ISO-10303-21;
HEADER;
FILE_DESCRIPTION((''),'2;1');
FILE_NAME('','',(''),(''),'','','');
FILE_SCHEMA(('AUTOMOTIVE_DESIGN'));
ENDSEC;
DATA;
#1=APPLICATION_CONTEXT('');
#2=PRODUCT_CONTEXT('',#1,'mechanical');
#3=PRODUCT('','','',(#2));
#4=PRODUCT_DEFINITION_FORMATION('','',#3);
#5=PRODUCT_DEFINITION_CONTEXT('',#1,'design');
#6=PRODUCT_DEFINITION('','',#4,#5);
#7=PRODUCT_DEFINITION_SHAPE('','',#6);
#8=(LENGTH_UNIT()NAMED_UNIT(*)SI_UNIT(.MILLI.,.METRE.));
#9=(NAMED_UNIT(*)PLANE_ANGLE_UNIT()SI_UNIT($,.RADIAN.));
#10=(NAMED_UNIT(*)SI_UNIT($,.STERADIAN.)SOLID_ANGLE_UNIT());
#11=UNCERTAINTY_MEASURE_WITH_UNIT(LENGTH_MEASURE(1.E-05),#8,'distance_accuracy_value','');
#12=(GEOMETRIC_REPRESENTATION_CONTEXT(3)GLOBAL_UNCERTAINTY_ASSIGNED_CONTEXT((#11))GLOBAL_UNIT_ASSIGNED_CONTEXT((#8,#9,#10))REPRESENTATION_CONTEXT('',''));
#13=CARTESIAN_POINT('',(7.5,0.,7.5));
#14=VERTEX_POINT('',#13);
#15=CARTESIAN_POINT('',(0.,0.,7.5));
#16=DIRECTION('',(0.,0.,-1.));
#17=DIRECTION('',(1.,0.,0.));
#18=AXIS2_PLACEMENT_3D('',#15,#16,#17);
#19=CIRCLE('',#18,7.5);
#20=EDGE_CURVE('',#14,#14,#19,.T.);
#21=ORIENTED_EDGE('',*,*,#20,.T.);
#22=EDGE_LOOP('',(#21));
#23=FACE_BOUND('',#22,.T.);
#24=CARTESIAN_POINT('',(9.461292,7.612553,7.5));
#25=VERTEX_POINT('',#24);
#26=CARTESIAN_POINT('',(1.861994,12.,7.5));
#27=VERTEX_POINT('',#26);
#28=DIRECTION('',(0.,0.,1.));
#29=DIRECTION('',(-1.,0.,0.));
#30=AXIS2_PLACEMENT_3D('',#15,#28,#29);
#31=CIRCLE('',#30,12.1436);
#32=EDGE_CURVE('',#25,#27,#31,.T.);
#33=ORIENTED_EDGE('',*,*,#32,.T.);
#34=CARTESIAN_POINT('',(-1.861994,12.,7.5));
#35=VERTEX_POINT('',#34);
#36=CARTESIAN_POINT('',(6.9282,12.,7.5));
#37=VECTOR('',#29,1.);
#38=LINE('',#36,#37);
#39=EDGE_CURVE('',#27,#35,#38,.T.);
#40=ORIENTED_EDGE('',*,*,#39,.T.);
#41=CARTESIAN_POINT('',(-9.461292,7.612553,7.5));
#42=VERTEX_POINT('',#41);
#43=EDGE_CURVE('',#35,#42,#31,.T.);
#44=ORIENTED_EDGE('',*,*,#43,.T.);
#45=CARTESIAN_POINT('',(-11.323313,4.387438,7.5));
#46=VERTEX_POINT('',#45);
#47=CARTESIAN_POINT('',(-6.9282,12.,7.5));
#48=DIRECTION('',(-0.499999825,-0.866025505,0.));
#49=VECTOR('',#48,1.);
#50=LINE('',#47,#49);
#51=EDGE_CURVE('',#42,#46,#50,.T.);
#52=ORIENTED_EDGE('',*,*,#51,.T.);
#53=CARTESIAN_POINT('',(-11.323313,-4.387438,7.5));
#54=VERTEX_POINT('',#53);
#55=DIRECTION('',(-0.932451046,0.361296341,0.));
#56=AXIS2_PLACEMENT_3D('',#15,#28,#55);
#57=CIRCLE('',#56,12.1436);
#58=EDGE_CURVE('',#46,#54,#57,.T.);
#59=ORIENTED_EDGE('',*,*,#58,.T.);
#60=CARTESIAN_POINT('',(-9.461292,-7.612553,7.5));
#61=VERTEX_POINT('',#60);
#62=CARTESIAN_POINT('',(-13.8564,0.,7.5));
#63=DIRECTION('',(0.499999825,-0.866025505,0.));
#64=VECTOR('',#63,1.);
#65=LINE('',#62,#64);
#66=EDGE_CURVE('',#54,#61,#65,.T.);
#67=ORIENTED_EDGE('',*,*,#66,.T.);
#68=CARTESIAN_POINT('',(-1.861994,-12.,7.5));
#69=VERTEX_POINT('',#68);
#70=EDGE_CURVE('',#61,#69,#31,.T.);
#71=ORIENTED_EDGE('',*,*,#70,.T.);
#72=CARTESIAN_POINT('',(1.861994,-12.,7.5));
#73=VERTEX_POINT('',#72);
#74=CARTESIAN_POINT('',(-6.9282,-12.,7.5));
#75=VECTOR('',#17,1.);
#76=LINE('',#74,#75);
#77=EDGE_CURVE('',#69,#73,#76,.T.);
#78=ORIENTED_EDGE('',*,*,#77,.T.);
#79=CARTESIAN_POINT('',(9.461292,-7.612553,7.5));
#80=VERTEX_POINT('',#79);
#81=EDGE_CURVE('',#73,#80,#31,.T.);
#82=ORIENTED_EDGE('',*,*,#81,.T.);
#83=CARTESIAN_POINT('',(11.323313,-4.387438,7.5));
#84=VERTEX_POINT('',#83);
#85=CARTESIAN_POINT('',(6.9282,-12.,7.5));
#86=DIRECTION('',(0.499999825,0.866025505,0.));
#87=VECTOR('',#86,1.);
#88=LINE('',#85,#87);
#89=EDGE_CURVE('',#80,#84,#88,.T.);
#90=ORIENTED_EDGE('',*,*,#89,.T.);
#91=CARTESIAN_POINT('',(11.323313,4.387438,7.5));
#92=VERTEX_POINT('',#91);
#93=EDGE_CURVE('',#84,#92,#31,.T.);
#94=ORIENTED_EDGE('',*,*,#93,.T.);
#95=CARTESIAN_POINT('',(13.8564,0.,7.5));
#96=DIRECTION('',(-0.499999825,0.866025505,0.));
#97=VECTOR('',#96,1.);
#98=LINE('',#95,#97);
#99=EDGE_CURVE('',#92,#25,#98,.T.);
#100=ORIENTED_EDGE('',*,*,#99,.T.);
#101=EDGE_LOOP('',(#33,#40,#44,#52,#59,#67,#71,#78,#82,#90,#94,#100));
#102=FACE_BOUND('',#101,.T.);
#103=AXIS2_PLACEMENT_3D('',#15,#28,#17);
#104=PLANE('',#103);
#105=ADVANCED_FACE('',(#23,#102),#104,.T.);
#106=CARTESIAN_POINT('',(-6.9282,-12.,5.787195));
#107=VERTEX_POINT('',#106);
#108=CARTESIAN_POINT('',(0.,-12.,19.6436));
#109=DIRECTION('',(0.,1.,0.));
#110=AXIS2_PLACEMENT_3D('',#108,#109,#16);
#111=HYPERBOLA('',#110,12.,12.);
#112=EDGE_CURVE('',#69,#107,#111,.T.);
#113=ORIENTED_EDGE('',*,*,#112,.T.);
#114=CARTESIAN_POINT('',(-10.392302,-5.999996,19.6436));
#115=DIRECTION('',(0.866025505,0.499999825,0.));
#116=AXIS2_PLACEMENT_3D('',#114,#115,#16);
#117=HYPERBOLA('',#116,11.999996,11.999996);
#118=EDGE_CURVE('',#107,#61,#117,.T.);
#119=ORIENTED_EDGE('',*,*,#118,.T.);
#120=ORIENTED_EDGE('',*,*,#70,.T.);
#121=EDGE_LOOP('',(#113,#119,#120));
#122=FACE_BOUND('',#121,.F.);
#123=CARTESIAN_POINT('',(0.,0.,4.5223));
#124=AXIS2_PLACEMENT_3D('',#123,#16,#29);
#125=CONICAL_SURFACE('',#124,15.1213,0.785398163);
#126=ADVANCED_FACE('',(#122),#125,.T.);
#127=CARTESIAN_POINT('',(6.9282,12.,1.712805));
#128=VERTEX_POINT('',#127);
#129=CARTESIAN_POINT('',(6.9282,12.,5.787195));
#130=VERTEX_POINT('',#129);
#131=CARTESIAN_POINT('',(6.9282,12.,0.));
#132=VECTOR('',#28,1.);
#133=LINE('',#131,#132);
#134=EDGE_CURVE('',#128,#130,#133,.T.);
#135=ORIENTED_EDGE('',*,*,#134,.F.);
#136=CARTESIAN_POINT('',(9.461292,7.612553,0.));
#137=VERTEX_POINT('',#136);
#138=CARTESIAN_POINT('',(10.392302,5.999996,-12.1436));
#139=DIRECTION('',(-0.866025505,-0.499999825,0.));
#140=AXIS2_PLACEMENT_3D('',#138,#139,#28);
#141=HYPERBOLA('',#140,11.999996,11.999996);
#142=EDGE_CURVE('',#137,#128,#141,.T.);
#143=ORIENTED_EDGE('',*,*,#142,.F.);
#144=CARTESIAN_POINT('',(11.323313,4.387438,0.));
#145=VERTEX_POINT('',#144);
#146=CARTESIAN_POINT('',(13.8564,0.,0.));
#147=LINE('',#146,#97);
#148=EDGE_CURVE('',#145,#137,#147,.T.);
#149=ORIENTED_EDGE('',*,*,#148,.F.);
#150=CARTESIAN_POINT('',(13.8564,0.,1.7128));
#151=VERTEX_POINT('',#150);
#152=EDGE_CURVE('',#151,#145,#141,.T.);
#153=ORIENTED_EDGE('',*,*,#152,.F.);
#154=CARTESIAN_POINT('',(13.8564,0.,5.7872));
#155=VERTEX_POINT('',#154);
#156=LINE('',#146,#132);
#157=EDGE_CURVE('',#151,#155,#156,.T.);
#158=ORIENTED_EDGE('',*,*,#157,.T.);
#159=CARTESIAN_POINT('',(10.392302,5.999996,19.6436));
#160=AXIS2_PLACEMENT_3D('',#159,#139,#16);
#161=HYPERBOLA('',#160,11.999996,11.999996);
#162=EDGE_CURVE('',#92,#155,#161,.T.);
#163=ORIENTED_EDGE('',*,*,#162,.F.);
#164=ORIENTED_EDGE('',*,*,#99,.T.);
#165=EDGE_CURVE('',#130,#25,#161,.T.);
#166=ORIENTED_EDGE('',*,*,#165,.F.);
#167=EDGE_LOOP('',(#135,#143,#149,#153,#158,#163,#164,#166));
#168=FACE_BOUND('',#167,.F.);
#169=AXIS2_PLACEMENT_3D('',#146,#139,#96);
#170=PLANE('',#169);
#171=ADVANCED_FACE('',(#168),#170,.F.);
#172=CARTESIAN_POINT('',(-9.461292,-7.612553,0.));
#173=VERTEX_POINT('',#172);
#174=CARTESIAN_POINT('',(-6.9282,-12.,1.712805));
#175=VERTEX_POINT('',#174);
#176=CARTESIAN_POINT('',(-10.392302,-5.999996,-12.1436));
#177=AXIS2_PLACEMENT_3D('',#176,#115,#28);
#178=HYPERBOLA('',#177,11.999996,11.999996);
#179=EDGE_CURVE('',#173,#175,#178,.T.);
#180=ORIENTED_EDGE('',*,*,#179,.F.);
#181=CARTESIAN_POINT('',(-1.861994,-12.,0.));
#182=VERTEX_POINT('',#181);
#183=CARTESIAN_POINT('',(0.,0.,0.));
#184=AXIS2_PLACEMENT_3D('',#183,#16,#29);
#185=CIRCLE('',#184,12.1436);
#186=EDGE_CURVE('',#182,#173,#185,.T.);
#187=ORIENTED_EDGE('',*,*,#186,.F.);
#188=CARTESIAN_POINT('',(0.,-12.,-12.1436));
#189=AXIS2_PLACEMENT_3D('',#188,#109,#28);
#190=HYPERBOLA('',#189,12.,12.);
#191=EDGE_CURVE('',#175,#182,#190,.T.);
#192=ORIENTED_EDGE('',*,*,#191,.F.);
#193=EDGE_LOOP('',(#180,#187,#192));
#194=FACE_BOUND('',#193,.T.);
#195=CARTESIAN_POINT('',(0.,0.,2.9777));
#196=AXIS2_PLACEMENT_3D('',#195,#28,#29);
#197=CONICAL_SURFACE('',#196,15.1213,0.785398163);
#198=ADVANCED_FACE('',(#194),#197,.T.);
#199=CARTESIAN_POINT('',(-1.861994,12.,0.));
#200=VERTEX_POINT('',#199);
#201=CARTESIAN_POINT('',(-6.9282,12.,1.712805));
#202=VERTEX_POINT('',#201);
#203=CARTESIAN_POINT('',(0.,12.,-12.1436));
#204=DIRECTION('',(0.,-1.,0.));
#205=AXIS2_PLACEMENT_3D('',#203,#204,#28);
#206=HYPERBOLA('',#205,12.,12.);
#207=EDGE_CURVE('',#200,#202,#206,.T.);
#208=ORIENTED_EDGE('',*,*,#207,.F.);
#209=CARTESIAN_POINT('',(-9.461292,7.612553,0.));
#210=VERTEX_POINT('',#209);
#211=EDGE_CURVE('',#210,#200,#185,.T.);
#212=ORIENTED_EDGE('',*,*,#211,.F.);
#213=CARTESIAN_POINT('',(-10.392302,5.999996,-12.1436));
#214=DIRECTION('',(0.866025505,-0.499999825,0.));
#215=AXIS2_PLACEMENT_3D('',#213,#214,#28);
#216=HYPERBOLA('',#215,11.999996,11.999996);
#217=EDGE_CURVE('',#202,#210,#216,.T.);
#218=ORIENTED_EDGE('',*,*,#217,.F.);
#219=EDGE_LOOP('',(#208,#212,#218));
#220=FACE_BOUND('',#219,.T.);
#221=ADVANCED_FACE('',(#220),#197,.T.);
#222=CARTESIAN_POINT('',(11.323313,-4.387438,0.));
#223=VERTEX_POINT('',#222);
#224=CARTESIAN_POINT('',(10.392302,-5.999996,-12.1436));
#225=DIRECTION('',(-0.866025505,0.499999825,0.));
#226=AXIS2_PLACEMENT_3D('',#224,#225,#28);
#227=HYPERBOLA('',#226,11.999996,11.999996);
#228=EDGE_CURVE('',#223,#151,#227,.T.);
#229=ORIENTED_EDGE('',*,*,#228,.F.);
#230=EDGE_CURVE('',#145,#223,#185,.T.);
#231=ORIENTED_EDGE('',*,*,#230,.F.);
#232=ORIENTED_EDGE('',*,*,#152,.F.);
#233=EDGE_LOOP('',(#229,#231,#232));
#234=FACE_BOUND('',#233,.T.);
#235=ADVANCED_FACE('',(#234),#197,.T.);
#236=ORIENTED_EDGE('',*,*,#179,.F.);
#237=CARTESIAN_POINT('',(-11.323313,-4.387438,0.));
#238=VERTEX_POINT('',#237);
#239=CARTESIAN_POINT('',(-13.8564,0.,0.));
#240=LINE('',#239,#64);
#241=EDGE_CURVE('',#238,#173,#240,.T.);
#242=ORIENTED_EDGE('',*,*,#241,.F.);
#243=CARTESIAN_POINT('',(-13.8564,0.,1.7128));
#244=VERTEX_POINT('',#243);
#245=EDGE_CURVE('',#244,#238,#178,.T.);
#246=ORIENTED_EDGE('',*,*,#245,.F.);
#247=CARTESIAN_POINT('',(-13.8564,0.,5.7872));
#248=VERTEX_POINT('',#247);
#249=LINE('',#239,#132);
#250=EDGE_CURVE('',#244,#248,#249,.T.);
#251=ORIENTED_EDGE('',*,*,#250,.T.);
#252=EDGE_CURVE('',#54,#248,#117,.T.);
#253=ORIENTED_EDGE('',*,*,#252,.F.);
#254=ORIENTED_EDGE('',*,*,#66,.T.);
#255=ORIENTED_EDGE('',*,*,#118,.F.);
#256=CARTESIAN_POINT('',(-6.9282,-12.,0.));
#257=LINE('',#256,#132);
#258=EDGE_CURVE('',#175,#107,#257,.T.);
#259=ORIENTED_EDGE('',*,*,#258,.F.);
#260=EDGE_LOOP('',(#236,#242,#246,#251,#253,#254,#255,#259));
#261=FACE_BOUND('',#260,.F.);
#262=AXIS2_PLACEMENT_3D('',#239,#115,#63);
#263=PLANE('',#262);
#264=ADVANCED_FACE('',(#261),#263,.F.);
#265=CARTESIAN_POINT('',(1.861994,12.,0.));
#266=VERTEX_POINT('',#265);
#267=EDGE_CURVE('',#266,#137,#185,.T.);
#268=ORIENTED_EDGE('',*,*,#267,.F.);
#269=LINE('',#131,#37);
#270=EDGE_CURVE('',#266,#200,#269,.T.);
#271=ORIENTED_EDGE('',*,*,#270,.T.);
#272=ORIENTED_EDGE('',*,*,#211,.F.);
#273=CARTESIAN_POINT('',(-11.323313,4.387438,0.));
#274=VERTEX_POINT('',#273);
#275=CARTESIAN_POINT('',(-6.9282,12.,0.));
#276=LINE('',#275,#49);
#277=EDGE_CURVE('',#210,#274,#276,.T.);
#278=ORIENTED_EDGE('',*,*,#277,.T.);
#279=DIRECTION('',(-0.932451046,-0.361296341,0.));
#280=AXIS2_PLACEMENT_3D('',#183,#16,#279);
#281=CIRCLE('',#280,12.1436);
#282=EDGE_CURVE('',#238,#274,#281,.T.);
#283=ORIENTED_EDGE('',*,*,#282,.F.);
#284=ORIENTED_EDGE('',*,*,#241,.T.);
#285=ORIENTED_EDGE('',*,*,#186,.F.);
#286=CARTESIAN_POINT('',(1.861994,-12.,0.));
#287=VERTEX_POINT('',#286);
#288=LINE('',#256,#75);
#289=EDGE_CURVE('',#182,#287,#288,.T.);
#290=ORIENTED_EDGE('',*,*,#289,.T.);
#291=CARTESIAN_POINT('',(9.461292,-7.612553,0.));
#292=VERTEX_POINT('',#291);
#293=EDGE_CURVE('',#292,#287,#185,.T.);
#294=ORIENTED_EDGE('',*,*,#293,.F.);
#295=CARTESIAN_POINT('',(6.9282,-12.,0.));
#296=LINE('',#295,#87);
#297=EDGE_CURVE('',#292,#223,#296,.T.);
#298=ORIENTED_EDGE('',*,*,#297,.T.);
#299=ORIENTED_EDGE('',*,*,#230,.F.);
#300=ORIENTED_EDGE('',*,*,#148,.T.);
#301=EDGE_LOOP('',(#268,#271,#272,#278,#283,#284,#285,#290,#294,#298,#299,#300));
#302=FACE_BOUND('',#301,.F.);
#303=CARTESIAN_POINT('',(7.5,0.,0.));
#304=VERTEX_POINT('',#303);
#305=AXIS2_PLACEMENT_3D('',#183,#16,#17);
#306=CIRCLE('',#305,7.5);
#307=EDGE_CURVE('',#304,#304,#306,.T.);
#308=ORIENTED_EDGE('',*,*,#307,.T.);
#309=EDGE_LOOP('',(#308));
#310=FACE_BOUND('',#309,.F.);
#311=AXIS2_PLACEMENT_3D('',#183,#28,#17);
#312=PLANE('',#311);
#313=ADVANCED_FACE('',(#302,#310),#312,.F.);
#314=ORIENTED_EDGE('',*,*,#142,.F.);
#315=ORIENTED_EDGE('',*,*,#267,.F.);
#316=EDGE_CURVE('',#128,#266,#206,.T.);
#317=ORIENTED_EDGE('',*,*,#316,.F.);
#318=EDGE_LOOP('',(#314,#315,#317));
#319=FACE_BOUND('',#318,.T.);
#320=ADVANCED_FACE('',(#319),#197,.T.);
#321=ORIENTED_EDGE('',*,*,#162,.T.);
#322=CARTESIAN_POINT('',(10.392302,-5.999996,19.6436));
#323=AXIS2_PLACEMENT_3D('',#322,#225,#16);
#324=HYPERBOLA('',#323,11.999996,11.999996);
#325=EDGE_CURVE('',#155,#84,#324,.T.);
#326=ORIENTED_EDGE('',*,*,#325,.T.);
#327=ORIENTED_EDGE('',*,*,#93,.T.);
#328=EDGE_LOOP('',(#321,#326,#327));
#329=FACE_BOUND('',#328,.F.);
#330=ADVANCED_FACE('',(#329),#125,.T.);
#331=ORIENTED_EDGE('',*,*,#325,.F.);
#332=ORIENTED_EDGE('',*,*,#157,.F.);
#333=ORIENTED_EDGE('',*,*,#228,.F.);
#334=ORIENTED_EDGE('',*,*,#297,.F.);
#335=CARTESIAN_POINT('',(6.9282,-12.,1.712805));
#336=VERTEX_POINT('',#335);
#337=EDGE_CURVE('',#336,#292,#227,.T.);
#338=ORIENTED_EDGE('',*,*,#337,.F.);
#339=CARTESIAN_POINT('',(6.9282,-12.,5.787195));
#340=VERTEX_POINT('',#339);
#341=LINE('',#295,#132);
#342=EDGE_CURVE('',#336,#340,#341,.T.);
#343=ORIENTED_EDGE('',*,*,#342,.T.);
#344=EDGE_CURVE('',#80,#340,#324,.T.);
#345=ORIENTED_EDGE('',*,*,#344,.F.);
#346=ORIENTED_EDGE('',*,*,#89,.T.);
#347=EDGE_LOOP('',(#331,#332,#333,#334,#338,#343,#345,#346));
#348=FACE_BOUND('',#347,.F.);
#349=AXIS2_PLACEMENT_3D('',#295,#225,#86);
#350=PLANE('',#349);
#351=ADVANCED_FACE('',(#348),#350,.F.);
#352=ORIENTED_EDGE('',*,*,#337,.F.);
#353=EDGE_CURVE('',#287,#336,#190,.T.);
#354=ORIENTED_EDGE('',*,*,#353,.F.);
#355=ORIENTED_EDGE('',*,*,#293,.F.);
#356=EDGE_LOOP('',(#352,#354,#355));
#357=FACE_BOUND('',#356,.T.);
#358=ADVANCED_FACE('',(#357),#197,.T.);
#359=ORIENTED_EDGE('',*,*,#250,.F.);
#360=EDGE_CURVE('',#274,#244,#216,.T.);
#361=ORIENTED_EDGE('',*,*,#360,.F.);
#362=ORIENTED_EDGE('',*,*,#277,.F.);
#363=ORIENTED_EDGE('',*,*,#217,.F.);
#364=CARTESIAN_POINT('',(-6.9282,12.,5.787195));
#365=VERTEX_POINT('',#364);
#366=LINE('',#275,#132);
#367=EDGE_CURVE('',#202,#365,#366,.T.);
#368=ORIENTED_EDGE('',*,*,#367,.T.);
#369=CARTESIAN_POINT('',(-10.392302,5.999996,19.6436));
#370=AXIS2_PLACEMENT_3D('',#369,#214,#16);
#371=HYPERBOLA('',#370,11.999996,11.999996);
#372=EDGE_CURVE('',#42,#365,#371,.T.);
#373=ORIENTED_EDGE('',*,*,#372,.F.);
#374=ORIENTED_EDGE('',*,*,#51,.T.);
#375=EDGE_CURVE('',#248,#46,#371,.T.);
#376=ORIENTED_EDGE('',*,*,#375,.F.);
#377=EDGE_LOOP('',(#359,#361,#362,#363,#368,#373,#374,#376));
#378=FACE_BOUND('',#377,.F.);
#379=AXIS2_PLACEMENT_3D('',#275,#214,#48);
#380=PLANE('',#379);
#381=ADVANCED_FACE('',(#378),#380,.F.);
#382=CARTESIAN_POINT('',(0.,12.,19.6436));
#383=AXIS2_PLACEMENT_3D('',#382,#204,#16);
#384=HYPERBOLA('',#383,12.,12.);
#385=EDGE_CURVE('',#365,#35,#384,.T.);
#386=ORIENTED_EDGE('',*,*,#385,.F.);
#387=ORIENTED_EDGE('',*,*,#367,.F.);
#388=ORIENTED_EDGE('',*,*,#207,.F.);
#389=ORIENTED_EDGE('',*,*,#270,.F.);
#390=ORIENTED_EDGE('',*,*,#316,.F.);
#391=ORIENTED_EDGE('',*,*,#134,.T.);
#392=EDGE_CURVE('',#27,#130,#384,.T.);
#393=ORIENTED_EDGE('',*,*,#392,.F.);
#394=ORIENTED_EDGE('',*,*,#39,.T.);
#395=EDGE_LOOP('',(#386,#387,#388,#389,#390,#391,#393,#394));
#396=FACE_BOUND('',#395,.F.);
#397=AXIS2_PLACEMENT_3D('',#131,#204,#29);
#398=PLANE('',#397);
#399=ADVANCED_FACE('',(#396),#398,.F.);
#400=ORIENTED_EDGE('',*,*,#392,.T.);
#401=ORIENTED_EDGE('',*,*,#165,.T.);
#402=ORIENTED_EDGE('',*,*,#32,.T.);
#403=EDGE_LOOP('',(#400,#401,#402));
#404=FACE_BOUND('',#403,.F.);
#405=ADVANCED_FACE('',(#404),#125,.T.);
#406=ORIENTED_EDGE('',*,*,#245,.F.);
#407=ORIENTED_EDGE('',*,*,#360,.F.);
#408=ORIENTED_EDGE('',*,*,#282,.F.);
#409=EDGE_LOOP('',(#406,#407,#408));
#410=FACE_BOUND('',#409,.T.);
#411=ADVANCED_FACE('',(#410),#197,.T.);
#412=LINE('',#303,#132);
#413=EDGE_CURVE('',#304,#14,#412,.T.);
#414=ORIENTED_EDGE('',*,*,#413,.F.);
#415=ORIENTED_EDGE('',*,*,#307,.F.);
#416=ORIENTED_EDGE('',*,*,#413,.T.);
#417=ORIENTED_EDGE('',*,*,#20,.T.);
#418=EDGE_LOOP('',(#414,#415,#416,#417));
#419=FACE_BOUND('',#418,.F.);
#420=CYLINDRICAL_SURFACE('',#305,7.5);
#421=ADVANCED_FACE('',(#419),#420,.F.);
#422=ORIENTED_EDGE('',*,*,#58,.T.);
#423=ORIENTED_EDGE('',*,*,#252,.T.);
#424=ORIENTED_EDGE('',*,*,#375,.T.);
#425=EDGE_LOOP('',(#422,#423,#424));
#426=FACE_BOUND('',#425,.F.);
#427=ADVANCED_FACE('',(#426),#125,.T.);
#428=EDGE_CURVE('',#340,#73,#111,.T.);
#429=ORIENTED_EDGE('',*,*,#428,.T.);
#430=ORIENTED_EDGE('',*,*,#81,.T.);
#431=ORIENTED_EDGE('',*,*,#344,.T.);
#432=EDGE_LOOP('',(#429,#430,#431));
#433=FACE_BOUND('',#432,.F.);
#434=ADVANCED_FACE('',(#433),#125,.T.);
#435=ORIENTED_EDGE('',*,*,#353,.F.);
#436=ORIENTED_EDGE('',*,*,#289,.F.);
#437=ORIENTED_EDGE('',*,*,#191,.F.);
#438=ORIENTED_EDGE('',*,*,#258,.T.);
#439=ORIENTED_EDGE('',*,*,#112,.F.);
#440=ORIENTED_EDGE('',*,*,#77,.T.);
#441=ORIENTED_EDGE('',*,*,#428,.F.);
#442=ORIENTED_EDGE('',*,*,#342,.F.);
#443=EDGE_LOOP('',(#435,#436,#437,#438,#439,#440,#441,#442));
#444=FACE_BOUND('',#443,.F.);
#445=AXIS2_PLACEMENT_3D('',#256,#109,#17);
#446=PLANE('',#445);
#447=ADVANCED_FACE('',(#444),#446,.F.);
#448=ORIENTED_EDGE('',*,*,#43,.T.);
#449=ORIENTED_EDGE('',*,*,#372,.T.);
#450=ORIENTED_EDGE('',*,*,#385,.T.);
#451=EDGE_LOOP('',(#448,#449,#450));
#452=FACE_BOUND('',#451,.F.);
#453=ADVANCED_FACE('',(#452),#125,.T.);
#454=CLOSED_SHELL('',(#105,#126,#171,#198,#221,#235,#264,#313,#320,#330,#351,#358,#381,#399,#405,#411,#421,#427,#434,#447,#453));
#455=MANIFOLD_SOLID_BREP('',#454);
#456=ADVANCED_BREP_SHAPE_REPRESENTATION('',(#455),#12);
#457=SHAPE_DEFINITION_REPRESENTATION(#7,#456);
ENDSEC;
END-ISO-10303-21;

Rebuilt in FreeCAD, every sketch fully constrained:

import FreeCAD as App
import Part
import Sketcher

V = App.Vector
Q = App.Units.Quantity

doc = App.newDocument("Part")
body = doc.addObject("PartDesign::Body", "Body")

# Sketch on XY plane
sketch1 = body.newObject("Sketcher::SketchObject", "Sketch")
sketch1.AttachmentSupport = (doc.getObject("XY_Plane"), [""])
sketch1.MapMode = "FlatFace"
sketch1.addGeometry([
    Part.LineSegment(V(-14, 0, 0), V(-7, -12, 0)),  # 0
    Part.LineSegment(V(-7, -12, 0), V(7, -12, 0)),  # 1
    Part.LineSegment(V(7, -12, 0), V(14, 0, 0)),  # 2
    Part.LineSegment(V(14, 0, 0), V(7, 12, 0)),  # 3
    Part.LineSegment(V(7, 12, 0), V(-7, 12, 0)),  # 4
    Part.LineSegment(V(-7, 12, 0), V(-14, 0, 0)),  # 5
], False)
sketch1.addConstraint([
    Sketcher.Constraint("Coincident", 0, 2, 1, 1),
    Sketcher.Constraint("Coincident", 1, 2, 2, 1),
    Sketcher.Constraint("Coincident", 2, 2, 3, 1),
    Sketcher.Constraint("Coincident", 3, 2, 4, 1),
    Sketcher.Constraint("Coincident", 4, 2, 5, 1),
    Sketcher.Constraint("Coincident", 5, 2, 0, 1),
    Sketcher.Constraint("Horizontal", 1),
    Sketcher.Constraint("Horizontal", 4),
    Sketcher.Constraint("Symmetric", 0, 2, 3, 2, -1, 1),
    Sketcher.Constraint("Symmetric", 2, 2, 5, 2, -1, 1),
    Sketcher.Constraint("PointOnObject", 2, 2, -1),
    Sketcher.Constraint("Parallel", 2, 5),
    Sketcher.Constraint("Vertical", 1, 2, 3, 2),
    Sketcher.Constraint("Angle", 0, Q("-60 deg")),
    Sketcher.Constraint("DistanceY", 0, 2, -1, 1, Q("12 mm")),
    Sketcher.Constraint("DistanceX", 1, 1, 1, 2, Q("13.8564 mm")),
])
pad1 = body.newObject("PartDesign::Pad", "Pad")
pad1.Profile = sketch1
pad1.Length = 7.5

# Sketch on XZ plane
sketch2 = body.newObject("Sketcher::SketchObject", "Sketch001")
sketch2.AttachmentSupport = (doc.getObject("XZ_Plane"), [""])
sketch2.MapMode = "FlatFace"
sketch2.addGeometry([
    Part.LineSegment(V(-15.1, 3, 0), V(-15.1, 4.5, 0)),  # 0
    Part.LineSegment(V(-15.1, 4.5, 0), V(-10.9, 8.8, 0)),  # 1
    Part.LineSegment(V(-10.9, 8.8, 0), V(-19.9, 8.8, 0)),  # 2
    Part.LineSegment(V(-19.9, 8.8, 0), V(-19.9, -1.3, 0)),  # 3
    Part.LineSegment(V(-19.9, -1.3, 0), V(-10.9, -1.3, 0)),  # 4
    Part.LineSegment(V(-10.9, -1.3, 0), V(-15.1, 3, 0)),  # 5
], False)
sketch2.addConstraint([
    Sketcher.Constraint("Coincident", 0, 2, 1, 1),
    Sketcher.Constraint("Coincident", 1, 2, 2, 1),
    Sketcher.Constraint("Coincident", 2, 2, 3, 1),
    Sketcher.Constraint("Coincident", 3, 2, 4, 1),
    Sketcher.Constraint("Coincident", 4, 2, 5, 1),
    Sketcher.Constraint("Coincident", 5, 2, 0, 1),
    Sketcher.Constraint("Vertical", 0),
    Sketcher.Constraint("Horizontal", 2),
    Sketcher.Constraint("Vertical", 3),
    Sketcher.Constraint("Horizontal", 4),
    Sketcher.Constraint("Perpendicular", 1, 5),
    Sketcher.Constraint("Vertical", 1, 2, 4, 2),
    Sketcher.Constraint("Equal", 1, 5),
    Sketcher.Constraint("Distance", 1, Q("6 mm")),
    Sketcher.Constraint("DistanceX", 2, 2, 2, 1, Q("9.059 mm")),
    Sketcher.Constraint("DistanceY", 0, 1, 0, 2, Q("1.5446 mm")),
    Sketcher.Constraint("DistanceY", -1, 1, 1, 2, Q("8.765 mm")),
    Sketcher.Constraint("DistanceX", 0, 2, -1, 1, Q("15.1213 mm")),
])
groove = body.newObject("PartDesign::Groove", "Groove")
groove.Profile = sketch2
groove.ReferenceAxis = (sketch2, ["V_Axis"])
groove.Angle = 360

# Sketch on XY plane
sketch3 = body.newObject("Sketcher::SketchObject", "Sketch002")
sketch3.AttachmentSupport = (doc.getObject("XY_Plane"), [""])
sketch3.MapMode = "FlatFace"
sketch3.addGeometry(Part.Circle(V(0, 0, 0), V(0, 0, 1), 8), False)
sketch3.addConstraint([
    Sketcher.Constraint("Coincident", 0, 3, -1, 1),
    Sketcher.Constraint("Diameter", 0, Q("15 mm")),
])
pocket1 = body.newObject("PartDesign::Pocket", "Pocket")
pocket1.Profile = sketch3
pocket1.Type = "ThroughAll"
pocket1.Reversed = True

doc.recompute()
